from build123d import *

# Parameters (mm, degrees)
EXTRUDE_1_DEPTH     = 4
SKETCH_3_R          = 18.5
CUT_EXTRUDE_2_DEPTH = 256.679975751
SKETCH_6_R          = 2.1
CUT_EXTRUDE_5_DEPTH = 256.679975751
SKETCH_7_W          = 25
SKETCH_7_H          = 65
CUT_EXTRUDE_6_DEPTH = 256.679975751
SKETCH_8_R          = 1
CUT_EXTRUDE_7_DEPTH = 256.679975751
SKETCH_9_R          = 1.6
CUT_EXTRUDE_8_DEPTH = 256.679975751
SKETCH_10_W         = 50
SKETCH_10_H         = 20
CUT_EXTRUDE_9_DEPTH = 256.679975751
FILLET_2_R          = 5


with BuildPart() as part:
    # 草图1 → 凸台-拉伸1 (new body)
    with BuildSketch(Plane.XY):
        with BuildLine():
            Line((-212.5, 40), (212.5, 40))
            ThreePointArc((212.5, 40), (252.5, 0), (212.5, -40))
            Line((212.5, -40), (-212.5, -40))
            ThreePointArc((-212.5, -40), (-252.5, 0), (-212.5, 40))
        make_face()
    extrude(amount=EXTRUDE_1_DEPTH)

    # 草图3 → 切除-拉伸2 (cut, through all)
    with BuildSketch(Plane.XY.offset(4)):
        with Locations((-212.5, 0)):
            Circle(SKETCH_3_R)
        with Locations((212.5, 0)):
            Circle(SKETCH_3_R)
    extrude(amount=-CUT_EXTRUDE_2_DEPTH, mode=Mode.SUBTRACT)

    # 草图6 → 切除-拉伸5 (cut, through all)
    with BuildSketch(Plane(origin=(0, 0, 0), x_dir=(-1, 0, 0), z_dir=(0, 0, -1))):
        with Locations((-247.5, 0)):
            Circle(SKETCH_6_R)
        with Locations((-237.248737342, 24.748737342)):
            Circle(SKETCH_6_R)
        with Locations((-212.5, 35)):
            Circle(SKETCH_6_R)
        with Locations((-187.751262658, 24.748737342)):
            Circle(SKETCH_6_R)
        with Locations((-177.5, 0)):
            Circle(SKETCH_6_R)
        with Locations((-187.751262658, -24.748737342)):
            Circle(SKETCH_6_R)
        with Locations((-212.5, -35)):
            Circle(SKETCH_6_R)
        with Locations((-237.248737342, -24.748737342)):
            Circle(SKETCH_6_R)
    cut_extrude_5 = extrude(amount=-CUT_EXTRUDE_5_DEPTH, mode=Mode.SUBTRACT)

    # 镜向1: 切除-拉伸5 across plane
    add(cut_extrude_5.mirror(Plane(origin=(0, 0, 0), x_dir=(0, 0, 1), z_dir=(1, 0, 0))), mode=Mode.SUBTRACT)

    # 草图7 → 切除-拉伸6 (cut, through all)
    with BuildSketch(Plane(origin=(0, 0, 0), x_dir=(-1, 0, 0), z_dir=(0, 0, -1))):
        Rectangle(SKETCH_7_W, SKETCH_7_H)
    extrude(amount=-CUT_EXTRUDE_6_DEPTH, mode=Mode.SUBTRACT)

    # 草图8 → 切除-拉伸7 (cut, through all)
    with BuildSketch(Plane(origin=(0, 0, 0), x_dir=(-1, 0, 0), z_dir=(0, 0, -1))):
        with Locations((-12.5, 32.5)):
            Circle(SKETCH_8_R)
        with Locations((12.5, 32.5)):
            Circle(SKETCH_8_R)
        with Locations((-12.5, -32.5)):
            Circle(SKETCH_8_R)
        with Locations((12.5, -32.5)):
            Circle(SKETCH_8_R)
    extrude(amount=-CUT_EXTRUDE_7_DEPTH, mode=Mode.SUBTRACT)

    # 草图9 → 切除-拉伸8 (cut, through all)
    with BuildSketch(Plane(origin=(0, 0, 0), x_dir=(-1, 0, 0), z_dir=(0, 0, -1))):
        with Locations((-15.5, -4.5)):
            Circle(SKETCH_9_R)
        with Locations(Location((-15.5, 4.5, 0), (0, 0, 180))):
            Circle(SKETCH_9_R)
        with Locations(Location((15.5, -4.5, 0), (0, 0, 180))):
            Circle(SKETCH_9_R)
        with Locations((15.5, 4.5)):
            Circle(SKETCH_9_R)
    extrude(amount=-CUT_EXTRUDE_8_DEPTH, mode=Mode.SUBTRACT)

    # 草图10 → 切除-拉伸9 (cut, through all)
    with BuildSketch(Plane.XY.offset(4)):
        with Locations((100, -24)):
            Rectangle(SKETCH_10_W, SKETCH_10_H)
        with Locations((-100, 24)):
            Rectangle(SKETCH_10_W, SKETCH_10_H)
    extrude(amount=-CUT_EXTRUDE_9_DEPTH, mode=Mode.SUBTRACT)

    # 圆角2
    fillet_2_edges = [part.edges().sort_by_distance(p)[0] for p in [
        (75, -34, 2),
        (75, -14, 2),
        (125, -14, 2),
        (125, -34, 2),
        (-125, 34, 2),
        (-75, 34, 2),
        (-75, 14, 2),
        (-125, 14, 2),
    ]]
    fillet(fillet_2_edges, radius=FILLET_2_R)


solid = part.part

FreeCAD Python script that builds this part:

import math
import FreeCAD as App
import Part
import Sketcher
Q = App.Units.Quantity


def edges_at(feature, points):
    """Names of the edges that pass closest to the given points."""
    edges = feature.Shape.Edges
    near = lambda p: min(range(len(edges)), key=lambda i: edges[i].distToShape(Part.Vertex(*p))[0])
    return sorted({f"Edge{near(p) + 1}" for p in points})

doc = App.newDocument("Part")
body = doc.addObject("PartDesign::Body", "Body")

sketch1 = body.newObject("Sketcher::SketchObject", "Sketch")
sketch1.AttachmentSupport = (doc.getObject("XY_Plane"), [""])
sketch1.MapMode = "FlatFace"
sketch1.addGeometry(Part.LineSegment(App.Vector(212, 40, 0), App.Vector(-212, 40, 0)), False)
sketch1.addGeometry(Part.ArcOfCircle(Part.Circle(App.Vector(-212, 0, 0), App.Vector(0, 0, 1), 40), math.radians(90), math.radians(270)), False)
sketch1.addGeometry(Part.LineSegment(App.Vector(-212, -40, 0), App.Vector(212, -40, 0)), False)
sketch1.addGeometry(Part.ArcOfCircle(Part.Circle(App.Vector(212, 0, 0), App.Vector(0, 0, 1), 40), math.radians(-90), math.radians(90)), False)
sketch1.addConstraint(Sketcher.Constraint("Tangent", 0, 2, 1, 1))
sketch1.addConstraint(Sketcher.Constraint("Tangent", 1, 2, 2, 1))
sketch1.addConstraint(Sketcher.Constraint("Tangent", 2, 2, 3, 1))
sketch1.addConstraint(Sketcher.Constraint("Tangent", 3, 2, 0, 1))
sketch1.addConstraint(Sketcher.Constraint("Horizontal", 0))
sketch1.addConstraint(Sketcher.Constraint("Horizontal", 2))
sketch1.addConstraint(Sketcher.Constraint("Symmetric", 1, 3, 3, 3, -1, 1))
sketch1.addConstraint(Sketcher.Constraint("Radius", 1, Q("40 mm")))
sketch1.addConstraint(Sketcher.Constraint("DistanceX", 0, 2, 0, 1, Q("425 mm")))
pad1 = body.newObject("PartDesign::Pad", "Pad")
pad1.Profile = sketch1
pad1.Length = 4

sketch2 = body.newObject("Sketcher::SketchObject", "Sketch001")
sketch2.AttachmentSupport = (doc.getObject("XY_Plane"), [""])
sketch2.MapMode = "FlatFace"
sketch2.AttachmentOffset = App.Placement(App.Vector(0, 0, 4), App.Rotation())
sketch2.addGeometry(Part.Circle(App.Vector(-212, 0, 0), App.Vector(0, 0, 1), 18), False)
sketch2.addGeometry(Part.Circle(App.Vector(212, 0, 0), App.Vector(0, 0, 1), 18), False)
sketch2.addConstraint(Sketcher.Constraint("Equal", 0, 1))
sketch2.addConstraint(Sketcher.Constraint("Symmetric", 0, 3, 1, 3, -1, 1))
sketch2.addConstraint(Sketcher.Constraint("PointOnObject", 0, 3, -1))
sketch2.addConstraint(Sketcher.Constraint("Diameter", 0, Q("37 mm")))
sketch2.addConstraint(Sketcher.Constraint("DistanceX", 0, 3, 1, 3, Q("425 mm")))
pocket1 = body.newObject("PartDesign::Pocket", "Pocket")
pocket1.Profile = sketch2
pocket1.Type = "ThroughAll"

sketch3 = body.newObject("Sketcher::SketchObject", "Sketch002")
sketch3.AttachmentSupport = (doc.getObject("XY_Plane"), [""])
sketch3.MapMode = "FlatFace"
sketch3.addGeometry(Part.Circle(App.Vector(247.5, 0, 0), App.Vector(0, 0, 1), 2.1), False)
sketch3.addGeometry(Part.Circle(App.Vector(237.2, 24.7, 0), App.Vector(0, 0, 1), 2.1), False)
sketch3.addGeometry(Part.Circle(App.Vector(212.5, 35, 0), App.Vector(0, 0, 1), 2.1), False)
sketch3.addGeometry(Part.Circle(App.Vector(187.8, 24.7, 0), App.Vector(0, 0, 1), 2.1), False)
sketch3.addGeometry(Part.Circle(App.Vector(177.5, 0, 0), App.Vector(0, 0, 1), 2.1), False)
sketch3.addGeometry(Part.Circle(App.Vector(187.8, -24.7, 0), App.Vector(0, 0, 1), 2.1), False)
sketch3.addGeometry(Part.Circle(App.Vector(212.5, -35, 0), App.Vector(0, 0, 1), 2.1), False)
sketch3.addGeometry(Part.Circle(App.Vector(237.2, -24.7, 0), App.Vector(0, 0, 1), 2.1), False)
sketch3.addConstraint(Sketcher.Constraint("Equal", 0, 1))
sketch3.addConstraint(Sketcher.Constraint("Equal", 1, 2))
sketch3.addConstraint(Sketcher.Constraint("Equal", 2, 3))
sketch3.addConstraint(Sketcher.Constraint("Equal", 3, 4))
sketch3.addConstraint(Sketcher.Constraint("Equal", 4, 5))
sketch3.addConstraint(Sketcher.Constraint("Equal", 5, 6))
sketch3.addConstraint(Sketcher.Constraint("Equal", 6, 7))
sketch3.addConstraint(Sketcher.Constraint("Symmetric", 3, 3, 5, 3, -1))
sketch3.addConstraint(Sketcher.Constraint("Symmetric", 2, 3, 6, 3, -1))
sketch3.addConstraint(Sketcher.Constraint("Symmetric", 1, 3, 7, 3, -1))
sketch3.addConstraint(Sketcher.Constraint("PointOnObject", 0, 3, -1))
sketch3.addConstraint(Sketcher.Constraint("PointOnObject", 4, 3, -1))
sketch3.addConstraint(Sketcher.Constraint("Horizontal", 1, 3, 3, 3))
sketch3.addConstraint(Sketcher.Constraint("Diameter", 0, Q("4.2 mm")))
sketch3.addConstraint(Sketcher.Constraint("DistanceY", -1, 1, 2, 3, Q("35 mm")))
sketch3.addConstraint(Sketcher.Constraint("DistanceX", 2, 3, 0, 3, Q("35 mm")))
sketch3.addConstraint(Sketcher.Constraint("DistanceX", 4, 3, 2, 3, Q("35 mm")))
sketch3.addConstraint(Sketcher.Constraint("DistanceX", -1, 1, 0, 3, Q("247.5 mm")))
sketch3.addConstraint(Sketcher.Constraint("DistanceX", -1, 1, 1, 3, Q("237.248737 mm")))
sketch3.addConstraint(Sketcher.Constraint("DistanceY", -1, 1, 1, 3, Q("24.748737 mm")))
sketch3.addConstraint(Sketcher.Constraint("DistanceX", -1, 1, 3, 3, Q("187.751263 mm")))
pocket2 = body.newObject("PartDesign::Pocket", "Pocket001")
pocket2.Profile = sketch3
pocket2.Type = "ThroughAll"
pocket2.Reversed = True
doc.recompute()

mirrored = body.newObject("PartDesign::Mirrored", "Mirrored")
mirrored.Originals = [pocket2]
mirrored.MirrorPlane = (doc.getObject("YZ_Plane"), [""])
body.Tip = mirrored

sketch4 = body.newObject("Sketcher::SketchObject", "Sketch003")
sketch4.AttachmentSupport = (doc.getObject("XY_Plane"), [""])
sketch4.MapMode = "FlatFace"
sketch4.addGeometry(Part.LineSegment(App.Vector(12, 32, 0), App.Vector(12, -32, 0)), False)
sketch4.addGeometry(Part.LineSegment(App.Vector(12, -32, 0), App.Vector(-12, -32, 0)), False)
sketch4.addGeometry(Part.LineSegment(App.Vector(-12, -32, 0), App.Vector(-12, 32, 0)), False)
sketch4.addGeometry(Part.LineSegment(App.Vector(-12, 32, 0), App.Vector(12, 32, 0)), False)
sketch4.addConstraint(Sketcher.Constraint("Coincident", 0, 2, 1, 1))
sketch4.addConstraint(Sketcher.Constraint("Coincident", 1, 2, 2, 1))
sketch4.addConstraint(Sketcher.Constraint("Coincident", 2, 2, 3, 1))
sketch4.addConstraint(Sketcher.Constraint("Coincident", 3, 2, 0, 1))
sketch4.addConstraint(Sketcher.Constraint("Vertical", 0))
sketch4.addConstraint(Sketcher.Constraint("Horizontal", 1))
sketch4.addConstraint(Sketcher.Constraint("Vertical", 2))
sketch4.addConstraint(Sketcher.Constraint("Horizontal", 3))
sketch4.addConstraint(Sketcher.Constraint("Symmetric", 0, 2, 2, 2, -1, 1))
sketch4.addConstraint(Sketcher.Constraint("DistanceX", 1, 2, 1, 1, Q("25 mm")))
sketch4.addConstraint(Sketcher.Constraint("DistanceY", 0, 2, 0, 1, Q("65 mm")))
pocket3 = body.newObject("PartDesign::Pocket", "Pocket002")
pocket3.Profile = sketch4
pocket3.Type = "ThroughAll"
pocket3.Reversed = True

sketch5 = body.newObject("Sketcher::SketchObject", "Sketch004")
sketch5.AttachmentSupport = (doc.getObject("XY_Plane"), [""])
sketch5.MapMode = "FlatFace"
sketch5.addGeometry(Part.Circle(App.Vector(12.5, 32.5, 0), App.Vector(0, 0, 1), 1), False)
sketch5.addGeometry(Part.Circle(App.Vector(-12.5, 32.5, 0), App.Vector(0, 0, 1), 1), False)
sketch5.addGeometry(Part.Circle(App.Vector(12.5, -32.5, 0), App.Vector(0, 0, 1), 1), False)
sketch5.addGeometry(Part.Circle(App.Vector(-12.5, -32.5, 0), App.Vector(0, 0, 1), 1), False)
sketch5.addConstraint(Sketcher.Constraint("Equal", 0, 1))
sketch5.addConstraint(Sketcher.Constraint("Equal", 1, 2))
sketch5.addConstraint(Sketcher.Constraint("Equal", 2, 3))
sketch5.addConstraint(Sketcher.Constraint("Symmetric", 1, 3, 2, 3, -1, 1))
sketch5.addConstraint(Sketcher.Constraint("Symmetric", 0, 3, 3, 3, -1, 1))
sketch5.addConstraint(Sketcher.Constraint("Symmetric", 0, 3, 1, 3, -2))
sketch5.addConstraint(Sketcher.Constraint("Diameter", 0, Q("2 mm")))
sketch5.addConstraint(Sketcher.Constraint("DistanceX", 1, 3, 0, 3, Q("25 mm")))
sketch5.addConstraint(Sketcher.Constraint("DistanceY", 2, 3, 0, 3, Q("65 mm")))
pocket4 = body.newObject("PartDesign::Pocket", "Pocket003")
pocket4.Profile = sketch5
pocket4.Type = "ThroughAll"
pocket4.Reversed = True

sketch6 = body.newObject("Sketcher::SketchObject", "Sketch005")
sketch6.AttachmentSupport = (doc.getObject("XY_Plane"), [""])
sketch6.MapMode = "FlatFace"
sketch6.addGeometry(Part.Circle(App.Vector(15.5, -4.5, 0), App.Vector(0, 0, 1), 1.6), False)
sketch6.addGeometry(Part.Circle(App.Vector(15.5, 4.5, 0), App.Vector(0, 0, 1), 1.6), False)
sketch6.addGeometry(Part.Circle(App.Vector(-15.5, -4.5, 0), App.Vector(0, 0, 1), 1.6), False)
sketch6.addGeometry(Part.Circle(App.Vector(-15.5, 4.5, 0), App.Vector(0, 0, 1), 1.6), False)
sketch6.addConstraint(Sketcher.Constraint("Equal", 0, 1))
sketch6.addConstraint(Sketcher.Constraint("Equal", 1, 2))
sketch6.addConstraint(Sketcher.Constraint("Equal", 2, 3))
sketch6.addConstraint(Sketcher.Constraint("Symmetric", 1, 3, 2, 3, -1, 1))
sketch6.addConstraint(Sketcher.Constraint("Symmetric", 0, 3, 3, 3, -1, 1))
sketch6.addConstraint(Sketcher.Constraint("Symmetric", 0, 3, 2, 3, -2))
sketch6.addConstraint(Sketcher.Constraint("Diameter", 0, Q("3.2 mm")))
sketch6.addConstraint(Sketcher.Constraint("DistanceY", 0, 3, 1, 3, Q("9 mm")))
sketch6.addConstraint(Sketcher.Constraint("DistanceX", 2, 3, 0, 3, Q("31 mm")))
pocket5 = body.newObject("PartDesign::Pocket", "Pocket004")
pocket5.Profile = sketch6
pocket5.Type = "ThroughAll"
pocket5.Reversed = True

sketch7 = body.newObject("Sketcher::SketchObject", "Sketch006")
sketch7.AttachmentSupport = (doc.getObject("XY_Plane"), [""])
sketch7.MapMode = "FlatFace"
sketch7.AttachmentOffset = App.Placement(App.Vector(0, 0, 4), App.Rotation())
sketch7.addGeometry(Part.LineSegment(App.Vector(75, -14, 0), App.Vector(75, -34, 0)), False)
sketch7.addGeometry(Part.LineSegment(App.Vector(75, -34, 0), App.Vector(125, -34, 0)), False)
sketch7.addGeometry(Part.LineSegment(App.Vector(125, -34, 0), App.Vector(125, -14, 0)), False)
sketch7.addGeometry(Part.LineSegment(App.Vector(125, -14, 0), App.Vector(75, -14, 0)), False)
sketch7.addGeometry(Part.LineSegment(App.Vector(-125, 34, 0), App.Vector(-125, 14, 0)), False)
sketch7.addGeometry(Part.LineSegment(App.Vector(-125, 14, 0), App.Vector(-75, 14, 0)), False)
sketch7.addGeometry(Part.LineSegment(App.Vector(-75, 14, 0), App.Vector(-75, 34, 0)), False)
sketch7.addGeometry(Part.LineSegment(App.Vector(-75, 34, 0), App.Vector(-125, 34, 0)), False)
sketch7.addConstraint(Sketcher.Constraint("Coincident", 0, 2, 1, 1))
sketch7.addConstraint(Sketcher.Constraint("Coincident", 1, 2, 2, 1))
sketch7.addConstraint(Sketcher.Constraint("Coincident", 2, 2, 3, 1))
sketch7.addConstraint(Sketcher.Constraint("Coincident", 3, 2, 0, 1))
sketch7.addConstraint(Sketcher.Constraint("Coincident", 4, 2, 5, 1))
sketch7.addConstraint(Sketcher.Constraint("Coincident", 5, 2, 6, 1))
sketch7.addConstraint(Sketcher.Constraint("Coincident", 6, 2, 7, 1))
sketch7.addConstraint(Sketcher.Constraint("Coincident", 7, 2, 4, 1))
sketch7.addConstraint(Sketcher.Constraint("Vertical", 0))
sketch7.addConstraint(Sketcher.Constraint("Horizontal", 1))
sketch7.addConstraint(Sketcher.Constraint("Vertical", 2))
sketch7.addConstraint(Sketcher.Constraint("Horizontal", 3))
sketch7.addConstraint(Sketcher.Constraint("Vertical", 4))
sketch7.addConstraint(Sketcher.Constraint("Horizontal", 5))
sketch7.addConstraint(Sketcher.Constraint("Vertical", 6))
sketch7.addConstraint(Sketcher.Constraint("Horizontal", 7))
sketch7.addConstraint(Sketcher.Constraint("Symmetric", 2, 2, 4, 2, -1, 1))
sketch7.addConstraint(Sketcher.Constraint("Symmetric", 0, 2, 6, 2, -1, 1))
sketch7.addConstraint(Sketcher.Constraint("DistanceX", 1, 1, 1, 2, Q("50 mm")))
sketch7.addConstraint(Sketcher.Constraint("DistanceY", 0, 2, 0, 1, Q("20 mm")))
sketch7.addConstraint(Sketcher.Constraint("DistanceX", -1, 1, 0, 2, Q("75 mm")))
sketch7.addConstraint(Sketcher.Constraint("DistanceY", 0, 2, -1, 1, Q("34 mm")))
pocket6 = body.newObject("PartDesign::Pocket", "Pocket005")
pocket6.Profile = sketch7
pocket6.Type = "ThroughAll"
doc.recompute()

fillet = body.newObject("PartDesign::Fillet", "Fillet")
fillet.Base = (pocket6, edges_at(pocket6, [
    (75, -34, 2),
    (75, -14, 2),
    (125, -14, 2),
    (125, -34, 2),
    (-125, 34, 2),
    (-75, 34, 2),
    (-75, 14, 2),
    (-125, 14, 2),
]))
fillet.Radius = 5

doc.recompute()
